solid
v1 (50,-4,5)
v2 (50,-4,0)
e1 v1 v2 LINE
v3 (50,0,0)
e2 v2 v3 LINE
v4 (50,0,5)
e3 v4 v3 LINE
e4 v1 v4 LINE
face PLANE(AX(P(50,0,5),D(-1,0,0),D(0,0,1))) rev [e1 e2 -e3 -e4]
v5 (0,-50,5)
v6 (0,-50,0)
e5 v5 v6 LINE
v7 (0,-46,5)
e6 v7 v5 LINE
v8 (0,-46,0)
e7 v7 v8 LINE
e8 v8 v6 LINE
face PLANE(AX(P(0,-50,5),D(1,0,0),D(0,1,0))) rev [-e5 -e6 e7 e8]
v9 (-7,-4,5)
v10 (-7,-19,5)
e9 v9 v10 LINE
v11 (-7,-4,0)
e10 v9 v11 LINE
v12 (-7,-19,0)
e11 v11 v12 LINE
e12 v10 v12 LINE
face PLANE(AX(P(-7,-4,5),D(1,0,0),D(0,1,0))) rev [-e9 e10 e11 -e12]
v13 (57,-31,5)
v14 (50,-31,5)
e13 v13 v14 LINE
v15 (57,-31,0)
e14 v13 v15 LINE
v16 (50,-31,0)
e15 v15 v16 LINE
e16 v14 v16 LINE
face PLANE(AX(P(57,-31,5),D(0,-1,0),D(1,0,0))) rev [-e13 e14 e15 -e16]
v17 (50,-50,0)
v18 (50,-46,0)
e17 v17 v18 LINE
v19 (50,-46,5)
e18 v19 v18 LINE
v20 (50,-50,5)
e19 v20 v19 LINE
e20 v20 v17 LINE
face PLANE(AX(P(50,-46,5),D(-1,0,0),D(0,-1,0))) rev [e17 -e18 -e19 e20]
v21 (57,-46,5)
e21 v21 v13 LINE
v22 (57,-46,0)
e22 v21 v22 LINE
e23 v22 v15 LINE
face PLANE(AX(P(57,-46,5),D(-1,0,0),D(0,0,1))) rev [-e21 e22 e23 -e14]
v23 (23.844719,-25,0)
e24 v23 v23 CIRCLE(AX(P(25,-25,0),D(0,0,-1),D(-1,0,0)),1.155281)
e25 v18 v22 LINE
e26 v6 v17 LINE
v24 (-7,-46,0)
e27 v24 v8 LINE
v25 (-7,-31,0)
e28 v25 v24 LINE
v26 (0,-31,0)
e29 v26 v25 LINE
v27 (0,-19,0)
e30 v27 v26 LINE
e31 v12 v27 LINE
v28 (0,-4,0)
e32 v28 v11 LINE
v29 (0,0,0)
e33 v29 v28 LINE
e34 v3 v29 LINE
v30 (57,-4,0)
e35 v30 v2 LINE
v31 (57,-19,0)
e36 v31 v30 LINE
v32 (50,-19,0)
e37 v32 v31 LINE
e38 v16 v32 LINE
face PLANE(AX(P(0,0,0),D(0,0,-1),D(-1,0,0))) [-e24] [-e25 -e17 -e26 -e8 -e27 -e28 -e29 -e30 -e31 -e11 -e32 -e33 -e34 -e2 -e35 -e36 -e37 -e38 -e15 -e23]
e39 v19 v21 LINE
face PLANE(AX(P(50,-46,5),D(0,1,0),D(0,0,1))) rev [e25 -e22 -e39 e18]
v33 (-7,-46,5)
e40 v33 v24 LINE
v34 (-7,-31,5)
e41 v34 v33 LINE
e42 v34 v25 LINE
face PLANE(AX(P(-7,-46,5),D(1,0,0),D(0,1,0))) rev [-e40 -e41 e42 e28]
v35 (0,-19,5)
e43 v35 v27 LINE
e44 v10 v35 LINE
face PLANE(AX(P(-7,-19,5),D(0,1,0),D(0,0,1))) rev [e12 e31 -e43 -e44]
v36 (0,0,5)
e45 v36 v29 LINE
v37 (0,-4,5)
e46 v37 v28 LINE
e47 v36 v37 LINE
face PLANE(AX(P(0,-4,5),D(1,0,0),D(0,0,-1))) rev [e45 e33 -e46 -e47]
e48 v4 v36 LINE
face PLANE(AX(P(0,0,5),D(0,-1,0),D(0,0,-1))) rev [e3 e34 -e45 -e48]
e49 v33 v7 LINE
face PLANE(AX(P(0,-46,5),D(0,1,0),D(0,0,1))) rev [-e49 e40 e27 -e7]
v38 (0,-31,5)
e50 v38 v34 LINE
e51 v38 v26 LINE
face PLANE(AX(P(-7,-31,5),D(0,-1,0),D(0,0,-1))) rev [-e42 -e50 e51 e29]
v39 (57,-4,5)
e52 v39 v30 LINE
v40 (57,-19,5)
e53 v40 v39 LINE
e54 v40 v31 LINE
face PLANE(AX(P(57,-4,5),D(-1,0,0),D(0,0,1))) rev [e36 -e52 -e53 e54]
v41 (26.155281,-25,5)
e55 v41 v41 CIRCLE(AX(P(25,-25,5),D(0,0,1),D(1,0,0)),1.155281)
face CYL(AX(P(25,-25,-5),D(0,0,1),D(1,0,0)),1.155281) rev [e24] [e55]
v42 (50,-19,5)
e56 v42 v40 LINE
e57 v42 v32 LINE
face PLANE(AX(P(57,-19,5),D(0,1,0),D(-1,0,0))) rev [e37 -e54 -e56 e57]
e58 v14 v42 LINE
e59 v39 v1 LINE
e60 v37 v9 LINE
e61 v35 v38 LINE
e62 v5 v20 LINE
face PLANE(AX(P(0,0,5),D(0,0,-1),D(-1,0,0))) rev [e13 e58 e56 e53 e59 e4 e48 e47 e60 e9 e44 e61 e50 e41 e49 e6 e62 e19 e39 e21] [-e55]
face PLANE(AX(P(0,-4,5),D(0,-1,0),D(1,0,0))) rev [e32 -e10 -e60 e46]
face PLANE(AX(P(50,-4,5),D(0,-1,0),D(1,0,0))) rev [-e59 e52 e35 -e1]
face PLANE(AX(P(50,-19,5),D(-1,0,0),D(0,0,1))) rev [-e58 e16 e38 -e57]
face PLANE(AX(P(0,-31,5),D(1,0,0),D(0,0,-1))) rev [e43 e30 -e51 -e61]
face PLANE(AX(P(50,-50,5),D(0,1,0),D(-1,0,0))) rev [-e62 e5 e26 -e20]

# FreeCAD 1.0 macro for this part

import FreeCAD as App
import Part
import Sketcher
from FreeCAD import Vector
Q = App.Units.Quantity

doc = App.newDocument("Part")
params = doc.addObject("Spreadsheet::Sheet", "Params")
for row, (alias, value) in enumerate([
    ("sketch1_width", "50 mm"),
    ("sketch1_width2", "7 mm"),
    ("sketch1_height", "4 mm"),
    ("sketch1_height2", "15 mm"),
    ("sketch1_height3", "12 mm"),
    ("pad1_length", "5 mm"),
    ("pocket1_length", "10 mm"),
], start=1):
    params.set(f"A{row}", alias)
    params.set(f"B{row}", "=" + value)
    params.setAlias(f"B{row}", alias)

body = doc.addObject("PartDesign::Body", "Body")

# Sketch on XY plane
sketch1 = doc.addObject("Sketcher::SketchObject", "Sketch")
body.addObject(sketch1)
sketch1.AttachmentSupport = (doc.XY_Plane, [""])
sketch1.MapMode = "FlatFace"
sketch1.addGeometry(Part.LineSegment(Vector(50, 0, 0), Vector(0, 0, 0)), False)
sketch1.addGeometry(Part.LineSegment(Vector(0, 0, 0), Vector(0, -4, 0)), False)
sketch1.addGeometry(Part.LineSegment(Vector(0, -4, 0), Vector(-7, -4, 0)), False)
sketch1.addGeometry(Part.LineSegment(Vector(-7, -4, 0), Vector(-7, -19, 0)), False)
sketch1.addGeometry(Part.LineSegment(Vector(-7, -19, 0), Vector(0, -19, 0)), False)
sketch1.addGeometry(Part.LineSegment(Vector(0, -19, 0), Vector(0, -31, 0)), False)
sketch1.addGeometry(Part.LineSegment(Vector(0, -31, 0), Vector(-7, -31, 0)), False)
sketch1.addGeometry(Part.LineSegment(Vector(-7, -31, 0), Vector(-7, -46, 0)), False)
sketch1.addGeometry(Part.LineSegment(Vector(-7, -46, 0), Vector(0, -46, 0)), False)
sketch1.addGeometry(Part.LineSegment(Vector(0, -46, 0), Vector(0, -50, 0)), False)
sketch1.addGeometry(Part.LineSegment(Vector(0, -50, 0), Vector(50, -50, 0)), False)
sketch1.addGeometry(Part.LineSegment(Vector(50, -50, 0), Vector(50, -46, 0)), False)
sketch1.addGeometry(Part.LineSegment(Vector(50, -46, 0), Vector(57, -46, 0)), False)
sketch1.addGeometry(Part.LineSegment(Vector(57, -46, 0), Vector(57, -31, 0)), False)
sketch1.addGeometry(Part.LineSegment(Vector(57, -31, 0), Vector(50, -31, 0)), False)
sketch1.addGeometry(Part.LineSegment(Vector(50, -31, 0), Vector(50, -19, 0)), False)
sketch1.addGeometry(Part.LineSegment(Vector(50, -19, 0), Vector(57, -19, 0)), False)
sketch1.addGeometry(Part.LineSegment(Vector(57, -19, 0), Vector(57, -4, 0)), False)
sketch1.addGeometry(Part.LineSegment(Vector(57, -4, 0), Vector(50, -4, 0)), False)
sketch1.addGeometry(Part.LineSegment(Vector(50, -4, 0), Vector(50, 0, 0)), False)
sketch1.addConstraint(Sketcher.Constraint("Coincident", 0, 2, 1, 1))
sketch1.addConstraint(Sketcher.Constraint("Coincident", 1, 2, 2, 1))
sketch1.addConstraint(Sketcher.Constraint("Coincident", 2, 2, 3, 1))
sketch1.addConstraint(Sketcher.Constraint("Coincident", 3, 2, 4, 1))
sketch1.addConstraint(Sketcher.Constraint("Coincident", 4, 2, 5, 1))
sketch1.addConstraint(Sketcher.Constraint("Coincident", 5, 2, 6, 1))
sketch1.addConstraint(Sketcher.Constraint("Coincident", 6, 2, 7, 1))
sketch1.addConstraint(Sketcher.Constraint("Coincident", 7, 2, 8, 1))
sketch1.addConstraint(Sketcher.Constraint("Coincident", 8, 2, 9, 1))
sketch1.addConstraint(Sketcher.Constraint("Coincident", 9, 2, 10, 1))
sketch1.addConstraint(Sketcher.Constraint("Coincident", 10, 2, 11, 1))
sketch1.addConstraint(Sketcher.Constraint("Coincident", 11, 2, 12, 1))
sketch1.addConstraint(Sketcher.Constraint("Coincident", 12, 2, 13, 1))
sketch1.addConstraint(Sketcher.Constraint("Coincident", 13, 2, 14, 1))
sketch1.addConstraint(Sketcher.Constraint("Coincident", 14, 2, 15, 1))
sketch1.addConstraint(Sketcher.Constraint("Coincident", 15, 2, 16, 1))
sketch1.addConstraint(Sketcher.Constraint("Coincident", 16, 2, 17, 1))
sketch1.addConstraint(Sketcher.Constraint("Coincident", 17, 2, 18, 1))
sketch1.addConstraint(Sketcher.Constraint("Coincident", 18, 2, 19, 1))
sketch1.addConstraint(Sketcher.Constraint("Coincident", 19, 2, 0, 1))
sketch1.addConstraint(Sketcher.Constraint("Horizontal", 0))
sketch1.addConstraint(Sketcher.Constraint("Vertical", 1))
sketch1.addConstraint(Sketcher.Constraint("Horizontal", 2))
sketch1.addConstraint(Sketcher.Constraint("Vertical", 3))
sketch1.addConstraint(Sketcher.Constraint("Horizontal", 4))
sketch1.addConstraint(Sketcher.Constraint("Vertical", 5))
sketch1.addConstraint(Sketcher.Constraint("Horizontal", 6))
sketch1.addConstraint(Sketcher.Constraint("Vertical", 7))
sketch1.addConstraint(Sketcher.Constraint("Horizontal", 8))
sketch1.addConstraint(Sketcher.Constraint("Vertical", 9))
sketch1.addConstraint(Sketcher.Constraint("Horizontal", 10))
sketch1.addConstraint(Sketcher.Constraint("Vertical", 11))
sketch1.addConstraint(Sketcher.Constraint("Horizontal", 12))
sketch1.addConstraint(Sketcher.Constraint("Vertical", 13))
sketch1.addConstraint(Sketcher.Constraint("Horizontal", 14))
sketch1.addConstraint(Sketcher.Constraint("Vertical", 15))
sketch1.addConstraint(Sketcher.Constraint("Horizontal", 16))
sketch1.addConstraint(Sketcher.Constraint("Vertical", 17))
sketch1.addConstraint(Sketcher.Constraint("Horizontal", 18))
sketch1.addConstraint(Sketcher.Constraint("Vertical", 19))
sketch1.addConstraint(Sketcher.Constraint("Coincident", 0, 2, -1, 1))
sketch1.addConstraint(Sketcher.Constraint("PointOnObject", 4, 2, -2))
sketch1.addConstraint(Sketcher.Constraint("PointOnObject", 8, 2, -2))
sketch1.addConstraint(Sketcher.Constraint("Horizontal", 8, 2, 11, 2))
sketch1.addConstraint(Sketcher.Constraint("Horizontal", 6, 2, 13, 2))
sketch1.addConstraint(Sketcher.Constraint("Horizontal", 4, 2, 15, 2))
sketch1.addConstraint(Sketcher.Constraint("Horizontal", 2, 2, 17, 2))
sketch1.addConstraint(Sketcher.Constraint("Vertical", 3, 2, 6, 2))
sketch1.addConstraint(Sketcher.Constraint("Vertical", 11, 2, 14, 2))
sketch1.addConstraint(Sketcher.Constraint("Vertical", 13, 2, 16, 2))
sketch1.addConstraint(Sketcher.Constraint("Vertical", 15, 2, 18, 2))
sketch1.addConstraint(Sketcher.Constraint("Equal", 8, 12))
sketch1.addConstraint(Sketcher.Constraint("Equal", 3, 7))
sketch1.addConstraint(Sketcher.Constraint("Equal", 1, 9))
sketch1.addConstraint(Sketcher.Constraint("DistanceX", 0, 2, 0, 1, Q("50 mm")))
sketch1.addConstraint(Sketcher.Constraint("DistanceX", 2, 2, 2, 1, Q("7 mm")))
sketch1.addConstraint(Sketcher.Constraint("DistanceY", 1, 2, 1, 1, Q("4 mm")))
sketch1.addConstraint(Sketcher.Constraint("DistanceY", 3, 2, 3, 1, Q("15 mm")))
sketch1.addConstraint(Sketcher.Constraint("DistanceY", 5, 2, 5, 1, Q("12 mm")))
sketch1.setExpression("Constraints[54]", "Params.sketch1_width")
sketch1.setExpression("Constraints[55]", "Params.sketch1_width2")
sketch1.setExpression("Constraints[56]", "Params.sketch1_height")
sketch1.setExpression("Constraints[57]", "Params.sketch1_height2")
sketch1.setExpression("Constraints[58]", "Params.sketch1_height3")
pad1 = doc.addObject("PartDesign::Pad", "Pad")
body.addObject(pad1)
pad1.Profile = sketch1
pad1.setExpression("Length", "Params.pad1_length")

# Sketch on XY plane
sketch2 = doc.addObject("Sketcher::SketchObject", "Sketch001")
body.addObject(sketch2)
sketch2.AttachmentSupport = (doc.XY_Plane, [""])
sketch2.MapMode = "FlatFace"
sketch2.AttachmentOffset = App.Placement(Vector(0, 0, 5), App.Rotation())
sketch2.addGeometry(Part.Circle(Vector(25, -25, 0), Vector(0, 0, 1), 1.155281), False)
sketch2.addConstraint(Sketcher.Constraint("DistanceX", -1, 1, 0, 3, Q("25 mm")))
sketch2.addConstraint(Sketcher.Constraint("DistanceY", 0, 3, -1, 1, Q("25 mm")))
sketch2.addConstraint(Sketcher.Constraint("Diameter", 0, Q("2.310562 mm")))
pocket1 = doc.addObject("PartDesign::Pocket", "Pocket")
body.addObject(pocket1)
pocket1.Profile = sketch2
pocket1.setExpression("Length", "Params.pocket1_length")

doc.recompute()
